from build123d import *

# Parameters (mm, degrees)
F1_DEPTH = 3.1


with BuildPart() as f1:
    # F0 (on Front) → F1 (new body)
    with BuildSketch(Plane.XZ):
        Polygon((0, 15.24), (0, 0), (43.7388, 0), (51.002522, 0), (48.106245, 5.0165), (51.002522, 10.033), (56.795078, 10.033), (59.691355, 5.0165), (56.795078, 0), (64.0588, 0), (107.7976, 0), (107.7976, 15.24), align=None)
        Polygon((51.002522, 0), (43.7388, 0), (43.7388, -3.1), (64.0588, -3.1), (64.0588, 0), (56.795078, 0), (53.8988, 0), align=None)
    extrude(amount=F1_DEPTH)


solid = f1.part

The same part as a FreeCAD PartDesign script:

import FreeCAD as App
import Part
import Sketcher

V = App.Vector
Q = App.Units.Quantity


def add_polygon(sketch, points):
    """Adds a closed chain of lines whose ends are joined by coincident constraints."""
    first, n = sketch.GeometryCount, len(points)
    for a, b in zip(points, points[1:] + points[:1]):
        sketch.addGeometry(Part.LineSegment(App.Vector(*a, 0), App.Vector(*b, 0)), False)
    for i in range(n):
        sketch.addConstraint(Sketcher.Constraint("Coincident", first + i, 2, first + (i + 1) % n, 1))

doc = App.newDocument("Part")
body = doc.addObject("PartDesign::Body", "Body")

# Sketch on XZ plane
sketch1 = doc.addObject("Sketcher::SketchObject", "Sketch")
body.addObject(sketch1)
sketch1.AttachmentSupport = (doc.XZ_Plane, [""])
sketch1.MapMode = "FlatFace"
add_polygon(sketch1, [(0, 15.2), (0, 0), (43.7, 0), (43.7, -3.1), (64.1, -3.1), (64.1, 0), (107.8, 0), (107.8, 15.2)])  # lines 0-7
add_polygon(sketch1, [(51, 0), (48.1, 5), (51, 10), (56.8, 10), (59.7, 5), (56.8, 0)])  # lines 8-13
sketch1.addConstraint([
    Sketcher.Constraint("Vertical", 0),
    Sketcher.Constraint("Horizontal", 1),
    Sketcher.Constraint("Vertical", 2),
    Sketcher.Constraint("Horizontal", 3),
    Sketcher.Constraint("Vertical", 4),
    Sketcher.Constraint("Horizontal", 5),
    Sketcher.Constraint("Vertical", 6),
    Sketcher.Constraint("Horizontal", 7),
    Sketcher.Constraint("Horizontal", 10),
    Sketcher.Constraint("Horizontal", 13),
    Sketcher.Constraint("Coincident", 0, 2, -1, 1),
    Sketcher.Constraint("PointOnObject", 4, 2, -1),
    Sketcher.Constraint("PointOnObject", 12, 2, -1),
    Sketcher.Constraint("Parallel", 8, 11),
    Sketcher.Constraint("Parallel", 9, 12),
    Sketcher.Constraint("Horizontal", 8, 2, 11, 2),
    Sketcher.Constraint("Vertical", 10, 2, 12, 2),
    Sketcher.Constraint("Vertical", 9, 2, 13, 2),
    Sketcher.Constraint("Equal", 1, 5),
    Sketcher.Constraint("DistanceX", 3, 1, 3, 2, Q("0.8 in")),
    Sketcher.Constraint("DistanceY", 0, 2, 0, 1, Q("0.6 in")),
    Sketcher.Constraint("Angle", 8, Q("119.999995 deg")),
    Sketcher.Constraint("DistanceX", 1, 1, 1, 2, Q("1.722 in")),
    Sketcher.Constraint("DistanceY", -1, 1, 9, 2, Q("0.395 in")),
    Sketcher.Constraint("DistanceY", 2, 2, 2, 1, 3.1),
    Sketcher.Constraint("DistanceX", 10, 1, 10, 2, 5.792556),
    Sketcher.Constraint("DistanceX", 9, 2, 4, 2, 13.056278),
])
pad1 = doc.addObject("PartDesign::Pad", "Pad")
body.addObject(pad1)
pad1.Profile = sketch1
pad1.Length = 3.1

doc.recompute()
